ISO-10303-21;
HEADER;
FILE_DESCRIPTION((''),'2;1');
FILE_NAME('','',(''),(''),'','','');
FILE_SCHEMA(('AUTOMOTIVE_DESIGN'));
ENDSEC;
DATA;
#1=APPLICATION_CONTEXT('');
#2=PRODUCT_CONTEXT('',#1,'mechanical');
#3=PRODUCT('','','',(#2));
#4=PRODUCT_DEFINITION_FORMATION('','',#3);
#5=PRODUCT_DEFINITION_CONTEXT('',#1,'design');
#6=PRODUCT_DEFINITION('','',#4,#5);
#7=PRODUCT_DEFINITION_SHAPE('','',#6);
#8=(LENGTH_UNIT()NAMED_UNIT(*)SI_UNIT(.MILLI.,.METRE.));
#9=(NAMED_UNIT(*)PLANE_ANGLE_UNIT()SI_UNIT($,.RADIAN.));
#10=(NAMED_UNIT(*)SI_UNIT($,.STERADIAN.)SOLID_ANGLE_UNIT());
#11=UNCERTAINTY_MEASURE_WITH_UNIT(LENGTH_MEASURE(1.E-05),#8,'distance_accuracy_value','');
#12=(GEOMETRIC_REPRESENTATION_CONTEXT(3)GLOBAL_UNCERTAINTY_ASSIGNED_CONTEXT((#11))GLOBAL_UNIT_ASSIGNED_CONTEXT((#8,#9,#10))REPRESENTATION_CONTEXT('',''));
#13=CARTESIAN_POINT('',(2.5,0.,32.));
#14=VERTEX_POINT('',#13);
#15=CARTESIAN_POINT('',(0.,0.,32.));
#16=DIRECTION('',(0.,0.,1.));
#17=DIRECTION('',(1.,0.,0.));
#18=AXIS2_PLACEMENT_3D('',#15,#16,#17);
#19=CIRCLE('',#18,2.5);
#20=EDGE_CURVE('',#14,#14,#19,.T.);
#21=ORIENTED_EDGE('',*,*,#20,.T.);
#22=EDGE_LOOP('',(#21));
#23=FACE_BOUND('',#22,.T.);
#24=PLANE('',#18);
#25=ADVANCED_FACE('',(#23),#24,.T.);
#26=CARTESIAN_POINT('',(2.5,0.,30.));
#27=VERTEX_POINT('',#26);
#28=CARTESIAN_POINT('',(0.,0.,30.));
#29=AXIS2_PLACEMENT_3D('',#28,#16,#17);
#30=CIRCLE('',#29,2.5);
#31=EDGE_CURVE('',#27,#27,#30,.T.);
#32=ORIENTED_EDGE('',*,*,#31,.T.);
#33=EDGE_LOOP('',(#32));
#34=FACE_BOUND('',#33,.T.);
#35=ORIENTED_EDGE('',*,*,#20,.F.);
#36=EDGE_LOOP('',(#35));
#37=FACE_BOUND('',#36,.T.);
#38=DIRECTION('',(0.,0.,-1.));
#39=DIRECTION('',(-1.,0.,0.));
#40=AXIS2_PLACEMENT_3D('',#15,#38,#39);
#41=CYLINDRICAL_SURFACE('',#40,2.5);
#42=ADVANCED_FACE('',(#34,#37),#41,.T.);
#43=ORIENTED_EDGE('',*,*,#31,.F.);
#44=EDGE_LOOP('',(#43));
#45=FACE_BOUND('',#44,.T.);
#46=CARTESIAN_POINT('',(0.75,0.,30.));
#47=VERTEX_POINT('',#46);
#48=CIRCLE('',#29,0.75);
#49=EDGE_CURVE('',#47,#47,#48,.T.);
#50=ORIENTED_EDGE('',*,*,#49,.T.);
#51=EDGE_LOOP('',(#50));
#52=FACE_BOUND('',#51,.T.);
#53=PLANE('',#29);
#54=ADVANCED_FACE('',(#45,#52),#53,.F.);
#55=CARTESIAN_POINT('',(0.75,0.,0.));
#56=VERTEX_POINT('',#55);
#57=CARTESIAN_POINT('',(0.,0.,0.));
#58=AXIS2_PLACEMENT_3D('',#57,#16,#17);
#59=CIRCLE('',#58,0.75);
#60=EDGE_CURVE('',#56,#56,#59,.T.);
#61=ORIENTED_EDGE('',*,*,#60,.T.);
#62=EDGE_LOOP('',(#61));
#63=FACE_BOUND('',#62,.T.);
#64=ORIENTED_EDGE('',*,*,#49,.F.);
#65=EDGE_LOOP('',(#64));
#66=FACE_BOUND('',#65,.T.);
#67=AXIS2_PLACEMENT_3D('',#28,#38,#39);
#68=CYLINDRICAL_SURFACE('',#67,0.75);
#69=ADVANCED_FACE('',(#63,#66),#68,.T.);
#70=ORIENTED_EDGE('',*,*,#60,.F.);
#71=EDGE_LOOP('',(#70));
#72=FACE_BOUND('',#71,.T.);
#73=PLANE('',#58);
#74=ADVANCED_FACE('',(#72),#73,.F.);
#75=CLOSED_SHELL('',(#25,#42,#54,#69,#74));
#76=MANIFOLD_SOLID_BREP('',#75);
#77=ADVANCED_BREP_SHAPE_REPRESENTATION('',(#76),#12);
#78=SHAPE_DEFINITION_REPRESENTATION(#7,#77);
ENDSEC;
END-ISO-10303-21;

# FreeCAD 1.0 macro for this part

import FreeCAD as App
import Part
import Sketcher
Q = App.Units.Quantity

doc = App.newDocument("Part")
body = doc.addObject("PartDesign::Body", "Body")

# Sketch on XY plane
sketch1 = body.newObject("Sketcher::SketchObject", "Sketch")
sketch1.AttachmentSupport = (doc.getObject("XY_Plane"), [""])
sketch1.MapMode = "FlatFace"
sketch1.addGeometry(Part.Circle(App.Vector(0, 0, 0), App.Vector(0, 0, 1), 0.8), False)
sketch1.addConstraint([
    Sketcher.Constraint("Coincident", 0, 3, -1, 1),
    Sketcher.Constraint("Diameter", 0, Q("1.5 mm")),
])
pad1 = body.newObject("PartDesign::Pad", "Pad")
pad1.Profile = sketch1
pad1.Length = 30

# Sketch on XY plane
sketch2 = body.newObject("Sketcher::SketchObject", "Sketch001")
sketch2.AttachmentSupport = (doc.getObject("XY_Plane"), [""])
sketch2.MapMode = "FlatFace"
sketch2.AttachmentOffset = App.Placement(App.Vector(0, 0, 30), App.Rotation())
sketch2.addGeometry(Part.Circle(App.Vector(0, 0, 0), App.Vector(0, 0, 1), 2.5), False)
sketch2.addConstraint([
    Sketcher.Constraint("Coincident", 0, 3, -1, 1),
    Sketcher.Constraint("Diameter", 0, Q("5 mm")),
])
pad2 = body.newObject("PartDesign::Pad", "Pad001")
pad2.Profile = sketch2
pad2.Length = 2

doc.recompute()
